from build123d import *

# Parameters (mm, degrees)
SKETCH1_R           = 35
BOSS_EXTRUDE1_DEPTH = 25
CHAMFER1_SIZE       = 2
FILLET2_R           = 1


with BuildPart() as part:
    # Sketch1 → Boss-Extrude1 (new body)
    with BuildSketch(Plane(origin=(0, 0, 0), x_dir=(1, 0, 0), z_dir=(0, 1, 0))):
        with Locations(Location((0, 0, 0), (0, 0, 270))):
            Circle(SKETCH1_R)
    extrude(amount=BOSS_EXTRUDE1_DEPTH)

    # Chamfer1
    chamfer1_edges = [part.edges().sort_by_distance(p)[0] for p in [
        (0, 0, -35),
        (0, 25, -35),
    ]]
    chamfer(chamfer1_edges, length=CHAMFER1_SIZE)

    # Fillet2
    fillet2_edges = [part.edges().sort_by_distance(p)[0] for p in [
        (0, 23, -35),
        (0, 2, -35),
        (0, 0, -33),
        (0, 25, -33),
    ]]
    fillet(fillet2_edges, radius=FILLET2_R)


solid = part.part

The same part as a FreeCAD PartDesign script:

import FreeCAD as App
import Part
import Sketcher
Q = App.Units.Quantity


def edges_at(feature, points):
    """Names of the edges that pass closest to the given points."""
    edges = feature.Shape.Edges
    near = lambda p: min(range(len(edges)), key=lambda i: edges[i].distToShape(Part.Vertex(*p))[0])
    return sorted({f"Edge{near(p) + 1}" for p in points})

doc = App.newDocument("Part")
params = doc.addObject("Spreadsheet::Sheet", "Params")
for row, (alias, value) in enumerate([
    ("sketch1_diameter", "70 mm"),
    ("pad1_length", "25 mm"),
    ("chamfer_size", "2 mm"),
    ("fillet_radius", "1 mm"),
], start=1):
    params.set(f"A{row}", alias)
    params.set(f"B{row}", "=" + value)
    params.setAlias(f"B{row}", alias)

body = doc.addObject("PartDesign::Body", "Body")

# Sketch on XZ plane
sketch1 = body.newObject("Sketcher::SketchObject", "Sketch")
sketch1.AttachmentSupport = (doc.getObject("XZ_Plane"), [""])
sketch1.MapMode = "FlatFace"
sketch1.addGeometry(Part.Circle(App.Vector(0, 0, 0), App.Vector(0, 0, 1), 35), False)
sketch1.addConstraint([
    Sketcher.Constraint("Coincident", 0, 3, -1, 1),
    Sketcher.Constraint("Diameter", 0, Q("70 mm")),
])
sketch1.setExpression("Constraints[1]", "Params.sketch1_diameter")
pad1 = body.newObject("PartDesign::Pad", "Pad")
pad1.Profile = sketch1
pad1.setExpression("Length", "Params.pad1_length")
pad1.Reversed = True
doc.recompute()

chamfer = body.newObject("PartDesign::Chamfer", "Chamfer")
chamfer.Base = (pad1, edges_at(pad1, [(0, 0, -35), (0, 25, -35)]))
chamfer.setExpression("Size", "Params.chamfer_size")
doc.recompute()

fillet = body.newObject("PartDesign::Fillet", "Fillet")
fillet.Base = (chamfer, edges_at(chamfer, [
    (0, 23, -35),
    (0, 2, -35),
    (0, 0, -33),
    (0, 25, -33),
]))
fillet.setExpression("Radius", "Params.fillet_radius")

doc.recompute()
